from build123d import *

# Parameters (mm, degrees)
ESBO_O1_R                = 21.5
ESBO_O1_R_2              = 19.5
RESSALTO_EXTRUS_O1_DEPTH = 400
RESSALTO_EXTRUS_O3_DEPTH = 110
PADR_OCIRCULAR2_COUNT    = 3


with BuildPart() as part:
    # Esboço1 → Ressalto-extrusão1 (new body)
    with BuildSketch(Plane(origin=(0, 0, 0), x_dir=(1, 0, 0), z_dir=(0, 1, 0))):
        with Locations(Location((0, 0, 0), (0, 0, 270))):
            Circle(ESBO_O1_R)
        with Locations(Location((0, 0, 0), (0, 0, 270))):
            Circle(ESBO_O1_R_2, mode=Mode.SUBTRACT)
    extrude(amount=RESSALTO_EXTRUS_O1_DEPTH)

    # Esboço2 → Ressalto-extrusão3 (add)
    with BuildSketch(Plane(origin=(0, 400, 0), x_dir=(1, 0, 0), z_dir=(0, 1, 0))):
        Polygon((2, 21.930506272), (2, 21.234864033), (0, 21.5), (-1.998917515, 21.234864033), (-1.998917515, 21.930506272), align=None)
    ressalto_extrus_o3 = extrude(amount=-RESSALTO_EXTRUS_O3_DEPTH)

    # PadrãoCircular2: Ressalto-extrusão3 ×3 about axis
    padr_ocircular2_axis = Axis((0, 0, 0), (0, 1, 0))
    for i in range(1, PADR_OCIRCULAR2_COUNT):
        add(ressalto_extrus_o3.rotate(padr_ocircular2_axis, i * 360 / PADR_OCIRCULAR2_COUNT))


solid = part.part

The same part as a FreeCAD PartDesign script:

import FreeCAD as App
import Part
import Sketcher

V = App.Vector
Q = App.Units.Quantity

doc = App.newDocument("Part")
params = doc.addObject("Spreadsheet::Sheet", "Params")
for row, (alias, value) in enumerate([
    ("sketch1_diameter", "43 mm"),
    ("sketch1_diameter2", "39 mm"),
    ("pad1_length", "400 mm"),
    ("pad2_length", "110 mm"),
], start=1):
    params.set(f"A{row}", alias)
    params.set(f"B{row}", "=" + value)
    params.setAlias(f"B{row}", alias)

body = doc.addObject("PartDesign::Body", "Body")

# Sketch on XZ plane
sketch1 = body.newObject("Sketcher::SketchObject", "Sketch")
sketch1.AttachmentSupport = (doc.getObject("XZ_Plane"), [""])
sketch1.MapMode = "FlatFace"
sketch1.addGeometry([
    Part.Circle(V(0, 0, 0), V(0, 0, 1), 22),
    Part.Circle(V(0, 0, 0), V(0, 0, 1), 20),
], False)
sketch1.addConstraint([
    Sketcher.Constraint("Coincident", 0, 3, -1, 1),
    Sketcher.Constraint("Coincident", 1, 3, -1, 1),
    Sketcher.Constraint("Diameter", 0, Q("43 mm")),
    Sketcher.Constraint("Diameter", 1, Q("39 mm")),
])
sketch1.setExpression("Constraints[2]", "Params.sketch1_diameter")
sketch1.setExpression("Constraints[3]", "Params.sketch1_diameter2")
pad1 = body.newObject("PartDesign::Pad", "Pad")
pad1.Profile = sketch1
pad1.setExpression("Length", "Params.pad1_length")
pad1.Reversed = True

# Sketch on XZ plane
sketch2 = body.newObject("Sketcher::SketchObject", "Sketch001")
sketch2.AttachmentSupport = (doc.getObject("XZ_Plane"), [""])
sketch2.MapMode = "FlatFace"
sketch2.AttachmentOffset = App.Placement(V(0, 0, -400), App.Rotation())
sketch2.addGeometry([
    Part.LineSegment(V(2, -21.2, 0), V(2, -21.9, 0)),  # 0
    Part.LineSegment(V(2, -21.9, 0), V(-2, -21.9, 0)),  # 1
    Part.LineSegment(V(-2, -21.9, 0), V(-2, -21.2, 0)),  # 2
    Part.LineSegment(V(-2, -21.2, 0), V(0, -21.5, 0)),  # 3
    Part.LineSegment(V(0, -21.5, 0), V(2, -21.2, 0)),  # 4
], False)
sketch2.addConstraint([
    Sketcher.Constraint("Coincident", 0, 2, 1, 1),
    Sketcher.Constraint("Coincident", 1, 2, 2, 1),
    Sketcher.Constraint("Coincident", 2, 2, 3, 1),
    Sketcher.Constraint("Coincident", 3, 2, 4, 1),
    Sketcher.Constraint("Coincident", 4, 2, 0, 1),
    Sketcher.Constraint("Vertical", 0),
    Sketcher.Constraint("Horizontal", 1),
    Sketcher.Constraint("Vertical", 2),
    Sketcher.Constraint("PointOnObject", 3, 2, -2),
    Sketcher.Constraint("Horizontal", 2, 2, 4, 2),
    Sketcher.Constraint("DistanceX", -1, 1, 0, 2, Q("2 mm")),
    Sketcher.Constraint("DistanceY", 3, 2, -1, 1, Q("21.5 mm")),
    Sketcher.Constraint("DistanceX", 1, 2, 1, 1, Q("3.998918 mm")),
    Sketcher.Constraint("DistanceY", 0, 2, 0, 1, Q("0.695642 mm")),
    Sketcher.Constraint("Distance", 3, Q("2.016425 mm")),
])
pad2 = body.newObject("PartDesign::Pad", "Pad001")
pad2.Profile = sketch2
pad2.setExpression("Length", "Params.pad2_length")
doc.recompute()

polarpattern = body.newObject("PartDesign::PolarPattern", "PolarPattern")
polarpattern.Originals = [pad2]
polarpattern.Axis = (doc.getObject("Y_Axis"), [""])
polarpattern.Angle = 360
polarpattern.Occurrences = 3
body.Tip = polarpattern

doc.recompute()
